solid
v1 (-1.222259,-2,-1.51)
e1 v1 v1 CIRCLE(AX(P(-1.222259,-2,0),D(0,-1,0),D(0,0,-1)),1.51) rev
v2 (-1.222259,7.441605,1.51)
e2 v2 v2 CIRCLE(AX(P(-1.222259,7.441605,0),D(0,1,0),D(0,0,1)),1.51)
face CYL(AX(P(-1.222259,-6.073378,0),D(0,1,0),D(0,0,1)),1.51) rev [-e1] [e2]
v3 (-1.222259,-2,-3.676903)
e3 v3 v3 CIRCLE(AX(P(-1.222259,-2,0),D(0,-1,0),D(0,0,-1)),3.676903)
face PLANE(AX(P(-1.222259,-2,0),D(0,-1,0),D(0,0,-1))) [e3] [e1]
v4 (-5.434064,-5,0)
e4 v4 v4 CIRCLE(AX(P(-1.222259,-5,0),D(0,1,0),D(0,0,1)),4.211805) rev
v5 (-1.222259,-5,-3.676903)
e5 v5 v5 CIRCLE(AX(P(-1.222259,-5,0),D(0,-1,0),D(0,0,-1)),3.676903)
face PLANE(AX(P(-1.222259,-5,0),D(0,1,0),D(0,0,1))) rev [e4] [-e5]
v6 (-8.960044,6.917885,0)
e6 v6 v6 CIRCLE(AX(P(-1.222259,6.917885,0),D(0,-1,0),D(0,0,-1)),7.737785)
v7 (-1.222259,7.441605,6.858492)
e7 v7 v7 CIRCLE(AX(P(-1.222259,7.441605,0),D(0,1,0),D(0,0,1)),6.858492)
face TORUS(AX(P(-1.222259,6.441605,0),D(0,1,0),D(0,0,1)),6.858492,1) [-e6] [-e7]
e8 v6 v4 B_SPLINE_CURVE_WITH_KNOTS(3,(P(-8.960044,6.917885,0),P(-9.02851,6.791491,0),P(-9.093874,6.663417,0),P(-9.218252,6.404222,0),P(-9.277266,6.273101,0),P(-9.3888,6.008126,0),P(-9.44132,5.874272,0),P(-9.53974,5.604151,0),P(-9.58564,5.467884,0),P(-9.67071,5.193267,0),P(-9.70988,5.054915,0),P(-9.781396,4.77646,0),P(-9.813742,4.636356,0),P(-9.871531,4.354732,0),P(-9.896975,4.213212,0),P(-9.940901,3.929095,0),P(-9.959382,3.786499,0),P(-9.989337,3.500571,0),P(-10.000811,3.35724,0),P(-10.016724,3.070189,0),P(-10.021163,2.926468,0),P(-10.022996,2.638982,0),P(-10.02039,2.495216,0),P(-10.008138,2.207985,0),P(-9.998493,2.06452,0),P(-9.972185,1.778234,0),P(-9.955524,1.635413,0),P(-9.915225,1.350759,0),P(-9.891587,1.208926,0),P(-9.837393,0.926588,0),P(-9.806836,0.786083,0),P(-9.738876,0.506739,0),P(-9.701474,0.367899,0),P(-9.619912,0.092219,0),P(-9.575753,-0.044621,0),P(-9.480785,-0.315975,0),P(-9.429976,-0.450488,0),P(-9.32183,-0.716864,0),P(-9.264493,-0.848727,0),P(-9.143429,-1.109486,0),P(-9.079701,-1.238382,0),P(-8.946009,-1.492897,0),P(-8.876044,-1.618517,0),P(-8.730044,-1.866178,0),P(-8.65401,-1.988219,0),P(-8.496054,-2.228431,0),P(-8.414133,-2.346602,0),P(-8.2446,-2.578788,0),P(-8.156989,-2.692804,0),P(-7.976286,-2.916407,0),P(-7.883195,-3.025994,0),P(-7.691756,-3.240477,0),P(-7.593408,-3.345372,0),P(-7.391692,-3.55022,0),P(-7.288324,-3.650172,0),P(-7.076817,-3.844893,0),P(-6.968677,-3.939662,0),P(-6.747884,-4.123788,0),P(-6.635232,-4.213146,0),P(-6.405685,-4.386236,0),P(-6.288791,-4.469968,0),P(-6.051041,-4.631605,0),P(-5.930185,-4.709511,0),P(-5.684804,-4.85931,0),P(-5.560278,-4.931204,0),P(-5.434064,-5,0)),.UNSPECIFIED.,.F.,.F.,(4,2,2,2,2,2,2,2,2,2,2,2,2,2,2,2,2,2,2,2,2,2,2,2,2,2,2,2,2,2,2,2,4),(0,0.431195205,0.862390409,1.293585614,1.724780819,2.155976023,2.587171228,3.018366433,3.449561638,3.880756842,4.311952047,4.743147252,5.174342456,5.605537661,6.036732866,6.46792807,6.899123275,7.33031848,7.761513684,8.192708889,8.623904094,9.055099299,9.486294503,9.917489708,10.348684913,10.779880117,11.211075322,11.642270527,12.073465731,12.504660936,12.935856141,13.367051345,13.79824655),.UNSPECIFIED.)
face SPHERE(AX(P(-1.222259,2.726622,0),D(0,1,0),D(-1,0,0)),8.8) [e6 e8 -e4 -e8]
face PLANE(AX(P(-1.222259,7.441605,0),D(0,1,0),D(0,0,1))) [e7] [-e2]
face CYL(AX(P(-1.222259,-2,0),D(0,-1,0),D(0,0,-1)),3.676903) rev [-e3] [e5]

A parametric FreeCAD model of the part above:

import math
import FreeCAD as App
import Part
import Sketcher

V = App.Vector
Q = App.Units.Quantity


def edges_at(feature, points):
    """Names of the edges that pass closest to the given points."""
    edges = feature.Shape.Edges
    near = lambda p: min(range(len(edges)), key=lambda i: edges[i].distToShape(Part.Vertex(*p))[0])
    return sorted({f"Edge{near(p) + 1}" for p in points})

doc = App.newDocument("Part")
body = doc.addObject("PartDesign::Body", "Body")

# Sketch on XY plane
sketch1 = doc.addObject("Sketcher::SketchObject", "Sketch")
body.addObject(sketch1)
sketch1.AttachmentSupport = (doc.XY_Plane, [""])
sketch1.MapMode = "FlatFace"
sketch1.addGeometry([
    Part.LineSegment(V(-1, -6, 0), V(-1, 7, 0)),
    Part.LineSegment(V(-1, 7, 0), V(-9, 7, 0)),
    Part.ArcOfCircle(Part.Circle(V(-1, 3, 0), V(0, 0, 1), 9), math.radians(148), math.radians(270)),
], False)
sketch1.addGeometry(Part.LineSegment(V(-1, 7, 0), V(-1, -6, 0)), True)  # axis
sketch1.addConstraint([
    Sketcher.Constraint("Coincident", 0, 2, 1, 1),
    Sketcher.Constraint("Coincident", 1, 2, 2, 1),
    Sketcher.Constraint("Coincident", 2, 2, 0, 1),
    Sketcher.Constraint("Vertical", 0),
    Sketcher.Constraint("Horizontal", 1),
    Sketcher.Constraint("Vertical", 3),
    Sketcher.Constraint("Coincident", 3, 1, 0, 2),
    Sketcher.Constraint("Vertical", 2, 3, 0, 2),
    Sketcher.Constraint("Equal", 0, 3),
    Sketcher.Constraint("Radius", 2, Q("8.8 mm")),
    Sketcher.Constraint("DistanceX", 1, 2, 1, 1, Q("7.430272 mm")),
    Sketcher.Constraint("DistanceX", 2, 3, -1, 1, Q("1.222259 mm")),
    Sketcher.Constraint("DistanceY", -1, 1, 2, 3, Q("2.726622 mm")),
])
revolution = doc.addObject("PartDesign::Revolution", "Revolution")
body.addObject(revolution)
revolution.Profile = sketch1
revolution.ReferenceAxis = (sketch1, ["Axis0"])
revolution.Angle = 360

# Sketch on XZ plane
sketch2 = doc.addObject("Sketcher::SketchObject", "Sketch001")
body.addObject(sketch2)
sketch2.AttachmentSupport = (doc.XZ_Plane, [""])
sketch2.MapMode = "FlatFace"
sketch2.AttachmentOffset = App.Placement(V(0, 0, -7.441605), App.Rotation())
sketch2.addGeometry(Part.Circle(V(-1.2, 0, 0), V(0, 0, 1), 1.5), False)
sketch2.addConstraint([
    Sketcher.Constraint("PointOnObject", 0, 3, -1),
    Sketcher.Constraint("Diameter", 0, Q("3.02 mm")),
    Sketcher.Constraint("DistanceX", 0, 3, -1, 1, Q("1.222259 mm")),
])
pocket1 = doc.addObject("PartDesign::Pocket", "Pocket")
body.addObject(pocket1)
pocket1.Profile = sketch2
pocket1.Type = "ThroughAll"
pocket1.Midplane = True

# Sketch on XZ plane
sketch3 = doc.addObject("Sketcher::SketchObject", "Sketch002")
body.addObject(sketch3)
sketch3.AttachmentSupport = (doc.XZ_Plane, [""])
sketch3.MapMode = "FlatFace"
sketch3.AttachmentOffset = App.Placement(V(0, 0, 10), App.Rotation())
sketch3.addGeometry(Part.Circle(V(-1.2, 0, 0), V(0, 0, 1), 4.6), False)
sketch3.addConstraint([
    Sketcher.Constraint("PointOnObject", 0, 3, -1),
    Sketcher.Constraint("Diameter", 0, Q("9.287373 mm")),
    Sketcher.Constraint("DistanceX", 0, 3, -1, 1, Q("1.222259 mm")),
])
pocket2 = doc.addObject("PartDesign::Pocket", "Pocket001")
body.addObject(pocket2)
pocket2.Profile = sketch3
pocket2.Length = 5

# Sketch on XZ plane
sketch4 = doc.addObject("Sketcher::SketchObject", "Sketch003")
body.addObject(sketch4)
sketch4.AttachmentSupport = (doc.XZ_Plane, [""])
sketch4.MapMode = "FlatFace"
sketch4.AttachmentOffset = App.Placement(V(0, 0, 5), App.Rotation())
sketch4.addGeometry(Part.Circle(V(-1.2, 0, 0), V(0, 0, 1), 3.7), False)
sketch4.addConstraint([
    Sketcher.Constraint("PointOnObject", 0, 3, -1),
    Sketcher.Constraint("Diameter", 0, Q("7.353807 mm")),
    Sketcher.Constraint("DistanceX", 0, 3, -1, 1, Q("1.222259 mm")),
])
pocket3 = doc.addObject("PartDesign::Pocket", "Pocket002")
body.addObject(pocket3)
pocket3.Profile = sketch4
pocket3.Length = 3
doc.recompute()

fillet = doc.addObject("PartDesign::Fillet", "Fillet")
body.addObject(fillet)
fillet.Base = (pocket3, edges_at(pocket3, [(6.208, 7.442, 0)]))
fillet.Radius = 1

doc.recompute()
